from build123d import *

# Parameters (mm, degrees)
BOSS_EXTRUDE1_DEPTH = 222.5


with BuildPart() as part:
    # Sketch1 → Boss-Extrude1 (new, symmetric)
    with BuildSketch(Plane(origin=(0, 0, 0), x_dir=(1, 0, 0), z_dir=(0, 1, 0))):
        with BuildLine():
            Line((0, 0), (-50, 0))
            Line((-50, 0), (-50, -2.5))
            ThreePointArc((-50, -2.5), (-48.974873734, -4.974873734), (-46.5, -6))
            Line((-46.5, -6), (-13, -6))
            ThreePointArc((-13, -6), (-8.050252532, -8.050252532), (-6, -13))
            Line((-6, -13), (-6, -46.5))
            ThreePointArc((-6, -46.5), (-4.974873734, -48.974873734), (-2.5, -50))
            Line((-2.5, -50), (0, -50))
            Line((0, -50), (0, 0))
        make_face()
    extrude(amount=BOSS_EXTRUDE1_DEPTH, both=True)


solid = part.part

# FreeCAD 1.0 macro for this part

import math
import FreeCAD as App
import Part
import Sketcher
from FreeCAD import Vector
Q = App.Units.Quantity

doc = App.newDocument("Part")
body = doc.addObject("PartDesign::Body", "Body")

sketch1 = body.newObject("Sketcher::SketchObject", "Sketch")
sketch1.AttachmentSupport = (doc.getObject("XZ_Plane"), [""])
sketch1.MapMode = "FlatFace"
sketch1.addGeometry([
    Part.LineSegment(Vector(0, 0, 0), Vector(-50, 0, 0)),
    Part.LineSegment(Vector(-50, 0, 0), Vector(-50, 2.5, 0)),
    Part.ArcOfCircle(Part.Circle(Vector(-46.5, 2.5, 0), Vector(0, 0, 1), 3.5), math.radians(90), math.radians(180)),
    Part.LineSegment(Vector(-46.5, 6, 0), Vector(-13, 6, 0)),
    Part.ArcOfCircle(Part.Circle(Vector(-13, 13, 0), Vector(0, 0, 1), 7), math.radians(-90), math.radians(0)),
    Part.LineSegment(Vector(-6, 13, 0), Vector(-6, 46.5, 0)),
    Part.ArcOfCircle(Part.Circle(Vector(-2.5, 46.5, 0), Vector(0, 0, 1), 3.5), math.radians(90), math.radians(180)),
    Part.LineSegment(Vector(-2.5, 50, 0), Vector(0, 50, 0)),
    Part.LineSegment(Vector(0, 50, 0), Vector(0, 0, 0)),
], False)
sketch1.addConstraint([
    Sketcher.Constraint("Coincident", 0, 2, 1, 1),
    Sketcher.Constraint("Tangent", 1, 2, 2, 2),
    Sketcher.Constraint("Tangent", 2, 1, 3, 1),
    Sketcher.Constraint("Tangent", 3, 2, 4, 1),
    Sketcher.Constraint("Tangent", 4, 2, 5, 1),
    Sketcher.Constraint("Tangent", 5, 2, 6, 2),
    Sketcher.Constraint("Tangent", 6, 1, 7, 1),
    Sketcher.Constraint("Coincident", 7, 2, 8, 1),
    Sketcher.Constraint("Coincident", 8, 2, 0, 1),
    Sketcher.Constraint("Horizontal", 0),
    Sketcher.Constraint("Vertical", 1),
    Sketcher.Constraint("Horizontal", 3),
    Sketcher.Constraint("Vertical", 5),
    Sketcher.Constraint("Horizontal", 7),
    Sketcher.Constraint("Vertical", 8),
    Sketcher.Constraint("Coincident", 8, 2, -1, 1),
    Sketcher.Constraint("Equal", 2, 6),
    Sketcher.Constraint("Equal", 7, 1),
    Sketcher.Constraint("Equal", 3, 5),
    Sketcher.Constraint("Radius", 4, Q("7 mm")),
    Sketcher.Constraint("Radius", 2, Q("3.5 mm")),
    Sketcher.Constraint("DistanceX", 0, 2, 0, 1, Q("50 mm")),
    Sketcher.Constraint("DistanceX", 3, 1, 3, 2, Q("33.5 mm")),
])
pad1 = body.newObject("PartDesign::Pad", "Pad")
pad1.Profile = sketch1
pad1.Length = 445
pad1.Midplane = True

doc.recompute()
